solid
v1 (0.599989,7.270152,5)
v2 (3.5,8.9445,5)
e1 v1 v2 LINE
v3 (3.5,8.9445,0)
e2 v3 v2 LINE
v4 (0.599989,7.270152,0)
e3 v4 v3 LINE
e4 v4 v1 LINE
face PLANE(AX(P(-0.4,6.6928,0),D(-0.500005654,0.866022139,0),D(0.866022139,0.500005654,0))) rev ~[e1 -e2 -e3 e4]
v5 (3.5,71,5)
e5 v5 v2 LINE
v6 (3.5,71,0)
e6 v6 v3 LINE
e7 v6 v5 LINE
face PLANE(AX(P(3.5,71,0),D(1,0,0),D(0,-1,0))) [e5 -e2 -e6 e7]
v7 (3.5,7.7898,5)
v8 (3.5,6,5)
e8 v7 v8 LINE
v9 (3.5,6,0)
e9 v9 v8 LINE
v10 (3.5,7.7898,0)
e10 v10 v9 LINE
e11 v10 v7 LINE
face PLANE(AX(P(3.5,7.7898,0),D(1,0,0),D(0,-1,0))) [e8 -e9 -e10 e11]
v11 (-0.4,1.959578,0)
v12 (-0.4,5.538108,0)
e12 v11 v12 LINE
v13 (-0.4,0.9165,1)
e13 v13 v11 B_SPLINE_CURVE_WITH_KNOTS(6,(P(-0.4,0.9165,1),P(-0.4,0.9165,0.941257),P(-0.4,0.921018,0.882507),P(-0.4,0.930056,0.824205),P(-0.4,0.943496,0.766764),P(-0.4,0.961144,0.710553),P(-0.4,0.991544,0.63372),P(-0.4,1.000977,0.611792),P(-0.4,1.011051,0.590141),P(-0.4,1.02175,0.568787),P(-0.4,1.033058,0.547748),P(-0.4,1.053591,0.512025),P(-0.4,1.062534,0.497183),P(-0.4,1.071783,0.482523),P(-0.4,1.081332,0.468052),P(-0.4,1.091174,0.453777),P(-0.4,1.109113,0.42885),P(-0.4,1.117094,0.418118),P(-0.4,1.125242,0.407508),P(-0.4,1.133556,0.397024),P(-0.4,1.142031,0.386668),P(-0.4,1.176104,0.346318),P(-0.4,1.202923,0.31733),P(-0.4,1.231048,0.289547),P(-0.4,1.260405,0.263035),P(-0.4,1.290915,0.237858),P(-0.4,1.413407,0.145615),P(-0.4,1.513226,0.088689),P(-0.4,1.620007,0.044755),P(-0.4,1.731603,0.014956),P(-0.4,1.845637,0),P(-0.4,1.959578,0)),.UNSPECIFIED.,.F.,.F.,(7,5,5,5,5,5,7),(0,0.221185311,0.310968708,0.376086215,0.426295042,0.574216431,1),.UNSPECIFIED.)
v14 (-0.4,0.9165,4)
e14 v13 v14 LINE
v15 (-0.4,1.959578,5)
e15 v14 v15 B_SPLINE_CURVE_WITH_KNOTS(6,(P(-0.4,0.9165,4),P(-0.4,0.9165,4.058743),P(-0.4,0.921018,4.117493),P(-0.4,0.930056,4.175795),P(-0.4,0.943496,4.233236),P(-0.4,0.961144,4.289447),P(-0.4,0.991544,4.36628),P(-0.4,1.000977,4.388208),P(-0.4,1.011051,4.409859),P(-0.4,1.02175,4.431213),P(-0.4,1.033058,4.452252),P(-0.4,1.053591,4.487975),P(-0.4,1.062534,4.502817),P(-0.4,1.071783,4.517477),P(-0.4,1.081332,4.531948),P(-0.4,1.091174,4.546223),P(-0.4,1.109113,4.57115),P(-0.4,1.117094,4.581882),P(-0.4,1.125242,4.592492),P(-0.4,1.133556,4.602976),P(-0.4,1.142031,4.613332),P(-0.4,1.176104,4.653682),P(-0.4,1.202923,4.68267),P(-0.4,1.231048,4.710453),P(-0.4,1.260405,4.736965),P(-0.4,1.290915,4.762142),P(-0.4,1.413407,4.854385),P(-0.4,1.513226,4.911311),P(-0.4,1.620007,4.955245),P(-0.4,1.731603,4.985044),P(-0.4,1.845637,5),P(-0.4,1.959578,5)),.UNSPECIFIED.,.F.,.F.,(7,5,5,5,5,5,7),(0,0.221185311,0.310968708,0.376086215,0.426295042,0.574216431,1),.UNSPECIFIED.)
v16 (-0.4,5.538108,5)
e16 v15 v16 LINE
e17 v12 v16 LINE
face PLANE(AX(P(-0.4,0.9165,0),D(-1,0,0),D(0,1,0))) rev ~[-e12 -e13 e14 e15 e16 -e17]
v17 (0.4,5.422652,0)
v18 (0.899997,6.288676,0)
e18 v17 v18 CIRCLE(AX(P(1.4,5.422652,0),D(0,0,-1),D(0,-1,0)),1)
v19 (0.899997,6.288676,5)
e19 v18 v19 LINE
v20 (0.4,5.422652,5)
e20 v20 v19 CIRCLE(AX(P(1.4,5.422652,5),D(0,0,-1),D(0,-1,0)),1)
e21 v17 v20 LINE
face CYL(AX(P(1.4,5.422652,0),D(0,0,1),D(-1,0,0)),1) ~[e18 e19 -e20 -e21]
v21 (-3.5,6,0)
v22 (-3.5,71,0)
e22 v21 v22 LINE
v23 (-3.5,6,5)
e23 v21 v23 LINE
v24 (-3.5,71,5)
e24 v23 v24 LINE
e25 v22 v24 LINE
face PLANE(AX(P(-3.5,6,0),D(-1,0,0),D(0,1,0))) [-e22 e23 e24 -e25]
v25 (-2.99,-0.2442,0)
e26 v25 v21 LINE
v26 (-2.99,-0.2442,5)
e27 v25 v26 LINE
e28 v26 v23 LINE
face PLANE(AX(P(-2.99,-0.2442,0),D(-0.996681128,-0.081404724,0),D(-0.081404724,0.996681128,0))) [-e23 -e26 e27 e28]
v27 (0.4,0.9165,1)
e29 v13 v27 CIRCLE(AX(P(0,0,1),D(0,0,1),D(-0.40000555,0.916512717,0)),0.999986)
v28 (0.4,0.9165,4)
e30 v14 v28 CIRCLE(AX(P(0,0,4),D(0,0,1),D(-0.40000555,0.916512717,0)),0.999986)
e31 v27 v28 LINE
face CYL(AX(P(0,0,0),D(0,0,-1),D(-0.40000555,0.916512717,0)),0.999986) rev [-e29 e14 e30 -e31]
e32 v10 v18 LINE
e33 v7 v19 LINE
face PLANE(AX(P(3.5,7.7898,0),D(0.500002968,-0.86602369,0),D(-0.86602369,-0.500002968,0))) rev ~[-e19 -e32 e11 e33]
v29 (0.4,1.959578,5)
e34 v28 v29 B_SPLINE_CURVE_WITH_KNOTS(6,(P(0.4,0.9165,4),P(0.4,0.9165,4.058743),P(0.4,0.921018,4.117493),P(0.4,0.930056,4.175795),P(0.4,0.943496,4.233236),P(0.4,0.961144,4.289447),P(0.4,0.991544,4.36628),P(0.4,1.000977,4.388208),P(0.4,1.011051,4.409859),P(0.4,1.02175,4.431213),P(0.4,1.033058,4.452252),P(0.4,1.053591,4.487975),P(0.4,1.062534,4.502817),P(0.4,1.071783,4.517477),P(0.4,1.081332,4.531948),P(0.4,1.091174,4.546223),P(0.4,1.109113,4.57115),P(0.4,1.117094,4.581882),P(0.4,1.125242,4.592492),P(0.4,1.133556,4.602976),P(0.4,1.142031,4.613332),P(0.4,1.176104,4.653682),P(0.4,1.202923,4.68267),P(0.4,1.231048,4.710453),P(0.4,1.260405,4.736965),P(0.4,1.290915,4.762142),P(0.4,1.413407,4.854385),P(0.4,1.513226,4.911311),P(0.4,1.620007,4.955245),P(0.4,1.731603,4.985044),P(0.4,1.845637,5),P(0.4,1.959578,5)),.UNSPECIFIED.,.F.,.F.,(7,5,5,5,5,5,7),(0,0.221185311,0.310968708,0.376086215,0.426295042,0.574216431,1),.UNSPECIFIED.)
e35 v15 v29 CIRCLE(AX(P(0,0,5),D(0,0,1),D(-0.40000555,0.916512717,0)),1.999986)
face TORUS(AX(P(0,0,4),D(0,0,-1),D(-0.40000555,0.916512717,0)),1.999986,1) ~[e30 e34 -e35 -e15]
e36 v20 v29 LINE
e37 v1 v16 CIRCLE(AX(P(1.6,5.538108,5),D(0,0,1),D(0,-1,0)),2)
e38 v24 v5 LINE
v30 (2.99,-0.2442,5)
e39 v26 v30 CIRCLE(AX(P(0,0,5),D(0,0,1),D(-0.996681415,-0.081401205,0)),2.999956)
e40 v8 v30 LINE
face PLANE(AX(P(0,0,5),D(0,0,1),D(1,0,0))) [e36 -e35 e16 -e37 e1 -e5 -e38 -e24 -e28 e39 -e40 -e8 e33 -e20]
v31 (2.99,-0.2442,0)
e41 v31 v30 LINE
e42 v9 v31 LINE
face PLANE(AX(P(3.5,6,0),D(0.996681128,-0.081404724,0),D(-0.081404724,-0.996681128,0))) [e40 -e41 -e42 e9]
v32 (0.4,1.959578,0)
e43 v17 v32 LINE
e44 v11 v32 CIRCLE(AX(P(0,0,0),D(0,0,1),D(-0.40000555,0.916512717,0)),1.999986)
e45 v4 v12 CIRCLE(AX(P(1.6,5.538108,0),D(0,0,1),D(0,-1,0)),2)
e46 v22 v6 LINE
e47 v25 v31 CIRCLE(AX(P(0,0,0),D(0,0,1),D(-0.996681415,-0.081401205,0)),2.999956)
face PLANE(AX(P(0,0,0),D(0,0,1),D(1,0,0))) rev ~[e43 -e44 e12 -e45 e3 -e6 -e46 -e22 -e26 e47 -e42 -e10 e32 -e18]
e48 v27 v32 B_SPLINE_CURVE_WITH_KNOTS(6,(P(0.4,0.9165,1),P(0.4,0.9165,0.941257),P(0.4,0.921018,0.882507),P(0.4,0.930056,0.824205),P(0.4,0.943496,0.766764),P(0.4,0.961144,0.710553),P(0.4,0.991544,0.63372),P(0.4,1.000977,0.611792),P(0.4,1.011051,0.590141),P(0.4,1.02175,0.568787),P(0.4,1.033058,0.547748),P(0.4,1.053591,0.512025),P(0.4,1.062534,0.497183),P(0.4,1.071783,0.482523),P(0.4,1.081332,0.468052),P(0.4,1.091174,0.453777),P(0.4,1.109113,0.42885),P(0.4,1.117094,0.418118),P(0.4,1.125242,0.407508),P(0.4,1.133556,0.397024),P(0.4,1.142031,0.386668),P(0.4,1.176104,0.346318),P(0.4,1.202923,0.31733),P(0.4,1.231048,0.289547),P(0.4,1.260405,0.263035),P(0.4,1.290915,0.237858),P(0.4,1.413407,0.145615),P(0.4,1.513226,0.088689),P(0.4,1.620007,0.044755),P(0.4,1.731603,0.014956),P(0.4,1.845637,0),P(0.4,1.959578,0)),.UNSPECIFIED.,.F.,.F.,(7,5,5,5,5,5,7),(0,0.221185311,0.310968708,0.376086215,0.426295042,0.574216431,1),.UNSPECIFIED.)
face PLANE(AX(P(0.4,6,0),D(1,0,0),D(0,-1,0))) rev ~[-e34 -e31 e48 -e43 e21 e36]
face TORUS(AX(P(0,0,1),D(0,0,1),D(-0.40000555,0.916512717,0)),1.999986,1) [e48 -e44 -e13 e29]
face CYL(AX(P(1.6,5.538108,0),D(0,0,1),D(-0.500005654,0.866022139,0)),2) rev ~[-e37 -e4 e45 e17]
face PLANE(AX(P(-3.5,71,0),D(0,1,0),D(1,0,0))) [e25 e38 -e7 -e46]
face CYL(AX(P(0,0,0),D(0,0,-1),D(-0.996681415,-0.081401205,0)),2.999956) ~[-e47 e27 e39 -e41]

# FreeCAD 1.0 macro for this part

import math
import FreeCAD as App
import Part
import Sketcher
Q = App.Units.Quantity


def edges_at(feature, points):
    """Names of the edges that pass closest to the given points."""
    edges = feature.Shape.Edges
    near = lambda p: min(range(len(edges)), key=lambda i: edges[i].distToShape(Part.Vertex(*p))[0])
    return sorted({f"Edge{near(p) + 1}" for p in points})

doc = App.newDocument("Part")
body = doc.addObject("PartDesign::Body", "Body")

# Sketch on XY plane
sketch1 = body.newObject("Sketcher::SketchObject", "Sketch")
sketch1.AttachmentSupport = (doc.getObject("XY_Plane"), [""])
sketch1.MapMode = "FlatFace"
sketch1.addGeometry([
    Part.ArcOfCircle(Part.Circle(App.Vector(0, 0, 0), App.Vector(0, 0, 1), 0.999986), math.radians(113.578525), math.radians(426.421475)),  # 0
    Part.LineSegment(App.Vector(-0.4, 0.9165, 0), App.Vector(-0.4, 6.6928, 0)),  # 1
    Part.LineSegment(App.Vector(-0.4, 6.6928, 0), App.Vector(3.5, 8.9445, 0)),  # 2
    Part.LineSegment(App.Vector(3.5, 8.9445, 0), App.Vector(3.5, 71, 0)),  # 3
    Part.LineSegment(App.Vector(3.5, 71, 0), App.Vector(-3.5, 71, 0)),  # 4
    Part.LineSegment(App.Vector(-3.5, 71, 0), App.Vector(-3.5, 6, 0)),  # 5
    Part.LineSegment(App.Vector(-3.5, 6, 0), App.Vector(-2.99, -0.2442, 0)),  # 6
    Part.ArcOfCircle(Part.Circle(App.Vector(0, 0, 0), App.Vector(0, 0, 1), 2.999956), math.radians(-175.330888), math.radians(-4.669112)),  # 7
    Part.LineSegment(App.Vector(2.99, -0.2442, 0), App.Vector(3.5, 6, 0)),  # 8
    Part.LineSegment(App.Vector(3.5, 6, 0), App.Vector(3.5, 7.7898, 0)),  # 9
    Part.LineSegment(App.Vector(3.5, 7.7898, 0), App.Vector(0.4, 6, 0)),  # 10
    Part.LineSegment(App.Vector(0.4, 6, 0), App.Vector(0.4, 0.9165, 0)),  # 11
], False)
sketch1.addConstraint([
    Sketcher.Constraint("Coincident", 0, 1, 1, 1),
    Sketcher.Constraint("Coincident", 1, 2, 2, 1),
    Sketcher.Constraint("Coincident", 2, 2, 3, 1),
    Sketcher.Constraint("Coincident", 3, 2, 4, 1),
    Sketcher.Constraint("Coincident", 4, 2, 5, 1),
    Sketcher.Constraint("Coincident", 5, 2, 6, 1),
    Sketcher.Constraint("Tangent", 6, 2, 7, 1),
    Sketcher.Constraint("Tangent", 7, 2, 8, 1),
    Sketcher.Constraint("Coincident", 8, 2, 9, 1),
    Sketcher.Constraint("Coincident", 9, 2, 10, 1),
    Sketcher.Constraint("Coincident", 10, 2, 11, 1),
    Sketcher.Constraint("Coincident", 11, 2, 0, 2),
    Sketcher.Constraint("Vertical", 1),
    Sketcher.Constraint("Vertical", 3),
    Sketcher.Constraint("Horizontal", 4),
    Sketcher.Constraint("Vertical", 5),
    Sketcher.Constraint("Vertical", 9),
    Sketcher.Constraint("Vertical", 11),
    Sketcher.Constraint("Coincident", 0, 3, -1, 1),
    Sketcher.Constraint("Coincident", 7, 3, -1, 1),
    Sketcher.Constraint("Symmetric", 5, 2, 8, 2, -2),
    Sketcher.Constraint("Parallel", 2, 10),
    Sketcher.Constraint("Horizontal", 8, 2, 10, 2),
    Sketcher.Constraint("Horizontal", 0, 1, 11, 2),
    Sketcher.Constraint("Vertical", 3, 2, 8, 2),
    Sketcher.Constraint("Radius", 0, 1.0),
    Sketcher.Constraint("Radius", 7, 3.0),
    Sketcher.Constraint("DistanceX", 4, 2, 4, 1, 7.0),
    Sketcher.Constraint("DistanceY", 5, 2, 5, 1, 65.0),
    Sketcher.Constraint("Angle", 2, Q("30.0004 deg")),
    Sketcher.Constraint("DistanceY", -1, 1, 5, 2, 6.0),
    Sketcher.Constraint("DistanceX", 1, 2, 10, 2, 0.8),
    Sketcher.Constraint("DistanceY", 1, 1, 1, 2, 5.7763),
])
pad1 = body.newObject("PartDesign::Pad", "Pad")
pad1.Profile = sketch1
pad1.Length = 5
doc.recompute()

fillet = body.newObject("PartDesign::Fillet", "Fillet")
fillet.Base = (pad1, edges_at(pad1, [(0, -1, 5), (0, -1, 0), (0.4, 6, 2.5)]))
fillet.Radius = 1
doc.recompute()

fillet2 = body.newObject("PartDesign::Fillet", "Fillet001")
fillet2.Base = (fillet, edges_at(fillet, [(-0.4, 6.693, 2.5)]))
fillet2.Radius = 2

doc.recompute()
